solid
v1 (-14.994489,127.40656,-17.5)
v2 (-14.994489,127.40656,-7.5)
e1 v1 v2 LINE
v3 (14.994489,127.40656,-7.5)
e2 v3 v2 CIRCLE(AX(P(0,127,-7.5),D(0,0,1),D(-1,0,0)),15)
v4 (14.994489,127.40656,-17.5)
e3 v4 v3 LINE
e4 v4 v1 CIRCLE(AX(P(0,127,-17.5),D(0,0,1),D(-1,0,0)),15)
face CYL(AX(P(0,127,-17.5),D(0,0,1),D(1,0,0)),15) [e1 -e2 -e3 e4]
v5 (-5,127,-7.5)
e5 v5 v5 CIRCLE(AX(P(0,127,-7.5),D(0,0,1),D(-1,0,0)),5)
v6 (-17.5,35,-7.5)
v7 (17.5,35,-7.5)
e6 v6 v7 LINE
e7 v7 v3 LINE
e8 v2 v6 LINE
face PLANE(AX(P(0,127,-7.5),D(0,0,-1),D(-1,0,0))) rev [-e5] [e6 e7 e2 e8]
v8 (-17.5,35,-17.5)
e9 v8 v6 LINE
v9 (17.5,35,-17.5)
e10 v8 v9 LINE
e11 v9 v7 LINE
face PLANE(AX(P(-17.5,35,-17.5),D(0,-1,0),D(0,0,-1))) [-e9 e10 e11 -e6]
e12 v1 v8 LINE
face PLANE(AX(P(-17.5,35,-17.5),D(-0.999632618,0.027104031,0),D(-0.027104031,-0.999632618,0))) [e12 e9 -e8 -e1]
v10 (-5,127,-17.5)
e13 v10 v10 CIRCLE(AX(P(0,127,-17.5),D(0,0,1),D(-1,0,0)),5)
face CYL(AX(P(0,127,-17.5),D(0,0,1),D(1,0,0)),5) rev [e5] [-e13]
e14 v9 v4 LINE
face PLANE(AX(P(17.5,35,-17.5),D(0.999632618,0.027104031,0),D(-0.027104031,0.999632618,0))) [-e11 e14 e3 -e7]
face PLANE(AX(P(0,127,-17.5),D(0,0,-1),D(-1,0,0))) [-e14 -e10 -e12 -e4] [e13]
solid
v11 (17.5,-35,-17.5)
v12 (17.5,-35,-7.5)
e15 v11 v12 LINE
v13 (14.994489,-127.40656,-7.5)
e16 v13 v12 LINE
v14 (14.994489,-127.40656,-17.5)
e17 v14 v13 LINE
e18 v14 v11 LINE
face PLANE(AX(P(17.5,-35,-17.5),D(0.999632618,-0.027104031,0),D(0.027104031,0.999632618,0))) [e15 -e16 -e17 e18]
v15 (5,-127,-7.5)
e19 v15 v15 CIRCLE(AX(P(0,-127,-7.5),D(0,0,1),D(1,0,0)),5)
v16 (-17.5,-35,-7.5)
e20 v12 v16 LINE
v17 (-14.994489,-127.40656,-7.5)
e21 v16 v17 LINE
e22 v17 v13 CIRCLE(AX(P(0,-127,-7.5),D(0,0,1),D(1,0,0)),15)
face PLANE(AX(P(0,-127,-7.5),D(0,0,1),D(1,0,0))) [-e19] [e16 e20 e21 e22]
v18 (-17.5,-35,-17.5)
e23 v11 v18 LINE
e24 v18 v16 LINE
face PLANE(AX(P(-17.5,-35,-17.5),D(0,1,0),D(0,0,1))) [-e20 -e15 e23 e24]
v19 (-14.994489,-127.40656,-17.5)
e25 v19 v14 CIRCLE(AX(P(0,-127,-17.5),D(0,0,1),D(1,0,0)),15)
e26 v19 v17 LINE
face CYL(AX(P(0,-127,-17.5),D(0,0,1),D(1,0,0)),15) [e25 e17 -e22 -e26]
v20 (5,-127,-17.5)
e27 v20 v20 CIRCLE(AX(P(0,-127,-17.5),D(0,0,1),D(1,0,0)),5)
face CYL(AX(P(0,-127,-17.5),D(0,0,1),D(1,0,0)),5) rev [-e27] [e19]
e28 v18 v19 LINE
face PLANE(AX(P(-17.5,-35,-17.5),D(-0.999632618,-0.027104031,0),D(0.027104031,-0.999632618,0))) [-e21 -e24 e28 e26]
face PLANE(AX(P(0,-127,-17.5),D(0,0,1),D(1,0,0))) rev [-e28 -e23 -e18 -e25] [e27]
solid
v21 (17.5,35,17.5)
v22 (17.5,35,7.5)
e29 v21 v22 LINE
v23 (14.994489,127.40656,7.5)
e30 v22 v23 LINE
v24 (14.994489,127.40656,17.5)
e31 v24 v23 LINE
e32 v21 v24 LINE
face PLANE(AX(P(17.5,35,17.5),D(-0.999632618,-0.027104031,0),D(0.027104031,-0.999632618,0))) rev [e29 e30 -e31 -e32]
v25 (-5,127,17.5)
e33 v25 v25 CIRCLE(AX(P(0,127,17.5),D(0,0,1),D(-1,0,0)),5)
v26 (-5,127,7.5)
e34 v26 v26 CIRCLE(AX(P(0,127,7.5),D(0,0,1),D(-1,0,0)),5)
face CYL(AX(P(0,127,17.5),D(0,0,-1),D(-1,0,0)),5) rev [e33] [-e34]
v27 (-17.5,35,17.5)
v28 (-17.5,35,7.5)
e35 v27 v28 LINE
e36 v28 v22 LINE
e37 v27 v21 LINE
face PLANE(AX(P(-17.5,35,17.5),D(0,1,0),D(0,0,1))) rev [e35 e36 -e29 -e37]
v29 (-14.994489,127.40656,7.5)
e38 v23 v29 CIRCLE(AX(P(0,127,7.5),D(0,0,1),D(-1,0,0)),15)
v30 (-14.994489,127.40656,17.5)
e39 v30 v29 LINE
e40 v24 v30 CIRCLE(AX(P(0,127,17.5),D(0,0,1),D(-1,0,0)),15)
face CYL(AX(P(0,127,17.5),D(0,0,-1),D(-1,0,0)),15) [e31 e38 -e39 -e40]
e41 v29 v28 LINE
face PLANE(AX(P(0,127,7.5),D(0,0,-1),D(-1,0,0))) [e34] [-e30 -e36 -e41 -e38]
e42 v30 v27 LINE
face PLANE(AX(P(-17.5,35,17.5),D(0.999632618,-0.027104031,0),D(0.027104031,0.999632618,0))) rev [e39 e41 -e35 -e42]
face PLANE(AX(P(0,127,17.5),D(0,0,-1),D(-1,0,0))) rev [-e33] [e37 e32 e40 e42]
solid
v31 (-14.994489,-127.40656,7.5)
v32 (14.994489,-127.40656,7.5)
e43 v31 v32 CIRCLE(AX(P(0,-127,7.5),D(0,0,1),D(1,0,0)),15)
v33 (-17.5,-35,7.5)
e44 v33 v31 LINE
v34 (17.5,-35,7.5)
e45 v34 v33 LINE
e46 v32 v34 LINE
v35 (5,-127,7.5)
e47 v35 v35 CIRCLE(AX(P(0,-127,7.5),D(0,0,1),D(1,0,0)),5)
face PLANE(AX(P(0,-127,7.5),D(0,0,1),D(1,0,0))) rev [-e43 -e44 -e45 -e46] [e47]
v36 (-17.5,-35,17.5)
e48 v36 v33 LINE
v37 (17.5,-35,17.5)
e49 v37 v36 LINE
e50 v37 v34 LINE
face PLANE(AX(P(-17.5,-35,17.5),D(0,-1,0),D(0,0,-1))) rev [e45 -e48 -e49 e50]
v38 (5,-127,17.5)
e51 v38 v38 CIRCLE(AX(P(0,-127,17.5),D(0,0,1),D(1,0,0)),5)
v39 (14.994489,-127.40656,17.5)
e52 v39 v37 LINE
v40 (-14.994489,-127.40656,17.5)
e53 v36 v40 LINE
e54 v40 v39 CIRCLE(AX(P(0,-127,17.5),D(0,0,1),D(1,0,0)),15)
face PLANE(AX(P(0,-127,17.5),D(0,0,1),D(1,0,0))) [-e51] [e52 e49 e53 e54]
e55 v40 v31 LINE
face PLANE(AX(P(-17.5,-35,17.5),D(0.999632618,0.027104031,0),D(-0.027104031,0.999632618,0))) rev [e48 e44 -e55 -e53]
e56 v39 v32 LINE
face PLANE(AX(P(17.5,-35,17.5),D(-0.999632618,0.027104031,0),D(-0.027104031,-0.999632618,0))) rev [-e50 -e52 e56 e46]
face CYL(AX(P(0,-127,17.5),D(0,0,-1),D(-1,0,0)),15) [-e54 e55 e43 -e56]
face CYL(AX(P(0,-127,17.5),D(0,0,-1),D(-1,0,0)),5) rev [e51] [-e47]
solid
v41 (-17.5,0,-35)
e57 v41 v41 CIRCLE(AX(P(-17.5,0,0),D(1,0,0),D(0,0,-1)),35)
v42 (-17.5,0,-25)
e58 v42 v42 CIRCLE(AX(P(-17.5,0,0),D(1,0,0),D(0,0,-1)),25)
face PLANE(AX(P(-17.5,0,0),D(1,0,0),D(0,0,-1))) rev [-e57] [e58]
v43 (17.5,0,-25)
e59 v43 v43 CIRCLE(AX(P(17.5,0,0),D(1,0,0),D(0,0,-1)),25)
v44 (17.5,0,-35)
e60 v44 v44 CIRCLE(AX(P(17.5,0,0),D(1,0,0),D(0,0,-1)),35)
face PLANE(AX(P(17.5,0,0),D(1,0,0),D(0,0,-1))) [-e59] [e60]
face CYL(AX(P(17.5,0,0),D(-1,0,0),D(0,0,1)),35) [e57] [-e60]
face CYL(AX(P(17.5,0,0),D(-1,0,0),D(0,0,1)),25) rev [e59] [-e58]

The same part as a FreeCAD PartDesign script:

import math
import FreeCAD as App
import Part
import Sketcher
from FreeCAD import Vector
Q = App.Units.Quantity

doc = App.newDocument("Part")
body = doc.addObject("PartDesign::Body", "Body")

# Sketch on YZ plane
sketch1 = body.newObject("Sketcher::SketchObject", "Sketch")
sketch1.AttachmentSupport = (doc.getObject("YZ_Plane"), [""])
sketch1.MapMode = "FlatFace"
sketch1.addGeometry([
    Part.Circle(Vector(0, 0, 0), Vector(0, 0, 1), 35),
    Part.Circle(Vector(0, 0, 0), Vector(0, 0, 1), 25),
], False)
sketch1.addConstraint([
    Sketcher.Constraint("Coincident", 0, 3, -1, 1),
    Sketcher.Constraint("Coincident", 1, 3, -1, 1),
    Sketcher.Constraint("Diameter", 0, Q("70 mm")),
    Sketcher.Constraint("Diameter", 1, Q("50 mm")),
])
pad1 = body.newObject("PartDesign::Pad", "Pad")
pad1.Profile = sketch1
pad1.Length = 35
pad1.Midplane = True
body2 = doc.addObject("PartDesign::Body", "Body001")

# Sketch on XY plane
sketch2 = body2.newObject("Sketcher::SketchObject", "Sketch001")
sketch2.AttachmentSupport = (doc.getObject("XY_Plane001"), [""])
sketch2.MapMode = "FlatFace"
sketch2.AttachmentOffset = App.Placement(Vector(0, 0, -7.5), App.Rotation())
sketch2.addGeometry([
    Part.LineSegment(Vector(-18, -35, 0), Vector(-15, -127, 0)),  # 0
    Part.ArcOfCircle(Part.Circle(Vector(0, -127, 0), Vector(0, 0, 1), 15), math.radians(-178), math.radians(-2)),  # 1
    Part.LineSegment(Vector(15, -127, 0), Vector(18, -35, 0)),  # 2
    Part.LineSegment(Vector(18, -35, 0), Vector(-18, -35, 0)),  # 3
    Part.Circle(Vector(0, -127, 0), Vector(0, 0, 1), 5),  # 4
], False)
sketch2.addConstraint([
    Sketcher.Constraint("Tangent", 0, 2, 1, 1),
    Sketcher.Constraint("Tangent", 1, 2, 2, 1),
    Sketcher.Constraint("Coincident", 2, 2, 3, 1),
    Sketcher.Constraint("Coincident", 3, 2, 0, 1),
    Sketcher.Constraint("Horizontal", 3),
    Sketcher.Constraint("Coincident", 4, 3, 1, 3),
    Sketcher.Constraint("Symmetric", 0, 2, 1, 2, -2),
    Sketcher.Constraint("Diameter", 4, Q("10 mm")),
    Sketcher.Constraint("Radius", 1, Q("15 mm")),
    Sketcher.Constraint("DistanceX", 3, 2, 3, 1, Q("35 mm")),
    Sketcher.Constraint("DistanceY", 1, 3, -1, 1, Q("127 mm")),
    Sketcher.Constraint("DistanceY", 2, 2, -1, 1, Q("35 mm")),
])
pad2 = body2.newObject("PartDesign::Pad", "Pad001")
pad2.Profile = sketch2
pad2.Length = 10
pad2.Reversed = True
body3 = doc.addObject("PartDesign::Body", "Body002")

# Sketch on XY plane
sketch3 = body3.newObject("Sketcher::SketchObject", "Sketch002")
sketch3.AttachmentSupport = (doc.getObject("XY_Plane002"), [""])
sketch3.MapMode = "FlatFace"
sketch3.AttachmentOffset = App.Placement(Vector(0, 0, -7.5), App.Rotation())
sketch3.addGeometry([
    Part.LineSegment(Vector(-18, 35, 0), Vector(18, 35, 0)),  # 0
    Part.LineSegment(Vector(18, 35, 0), Vector(15, 127, 0)),  # 1
    Part.ArcOfCircle(Part.Circle(Vector(0, 127, 0), Vector(0, 0, 1), 15), math.radians(2), math.radians(178)),  # 2
    Part.LineSegment(Vector(-15, 127, 0), Vector(-18, 35, 0)),  # 3
    Part.Circle(Vector(0, 127, 0), Vector(0, 0, 1), 5),  # 4
], False)
sketch3.addConstraint([
    Sketcher.Constraint("Coincident", 0, 2, 1, 1),
    Sketcher.Constraint("Tangent", 1, 2, 2, 1),
    Sketcher.Constraint("Tangent", 2, 2, 3, 1),
    Sketcher.Constraint("Coincident", 3, 2, 0, 1),
    Sketcher.Constraint("Horizontal", 0),
    Sketcher.Constraint("Coincident", 4, 3, 2, 3),
    Sketcher.Constraint("Symmetric", 1, 2, 2, 2, -2),
    Sketcher.Constraint("Diameter", 4, Q("10 mm")),
    Sketcher.Constraint("Radius", 2, Q("15 mm")),
    Sketcher.Constraint("DistanceX", 0, 1, 0, 2, Q("35 mm")),
    Sketcher.Constraint("DistanceY", -1, 1, 2, 3, Q("127 mm")),
    Sketcher.Constraint("DistanceY", -1, 1, 0, 2, Q("35 mm")),
])
pad3 = body3.newObject("PartDesign::Pad", "Pad002")
pad3.Profile = sketch3
pad3.Length = 10
pad3.Reversed = True
body4 = doc.addObject("PartDesign::Body", "Body003")

# Sketch on XY plane
sketch4 = body4.newObject("Sketcher::SketchObject", "Sketch003")
sketch4.AttachmentSupport = (doc.getObject("XY_Plane003"), [""])
sketch4.MapMode = "FlatFace"
sketch4.AttachmentOffset = App.Placement(Vector(0, 0, 7.5), App.Rotation())
sketch4.addGeometry([
    Part.LineSegment(Vector(-18, -35, 0), Vector(-15, -127, 0)),  # 0
    Part.ArcOfCircle(Part.Circle(Vector(0, -127, 0), Vector(0, 0, 1), 15), math.radians(-178), math.radians(-2)),  # 1
    Part.LineSegment(Vector(15, -127, 0), Vector(18, -35, 0)),  # 2
    Part.LineSegment(Vector(18, -35, 0), Vector(-18, -35, 0)),  # 3
    Part.Circle(Vector(0, -127, 0), Vector(0, 0, 1), 5),  # 4
], False)
sketch4.addConstraint([
    Sketcher.Constraint("Tangent", 0, 2, 1, 1),
    Sketcher.Constraint("Tangent", 1, 2, 2, 1),
    Sketcher.Constraint("Coincident", 2, 2, 3, 1),
    Sketcher.Constraint("Coincident", 3, 2, 0, 1),
    Sketcher.Constraint("Horizontal", 3),
    Sketcher.Constraint("Coincident", 4, 3, 1, 3),
    Sketcher.Constraint("Symmetric", 0, 2, 1, 2, -2),
    Sketcher.Constraint("Diameter", 4, Q("10 mm")),
    Sketcher.Constraint("Radius", 1, Q("15 mm")),
    Sketcher.Constraint("DistanceX", 3, 2, 3, 1, Q("35 mm")),
    Sketcher.Constraint("DistanceY", 1, 3, -1, 1, Q("127 mm")),
    Sketcher.Constraint("DistanceY", 2, 2, -1, 1, Q("35 mm")),
])
pad4 = body4.newObject("PartDesign::Pad", "Pad003")
pad4.Profile = sketch4
pad4.Length = 10
body5 = doc.addObject("PartDesign::Body", "Body004")

# Sketch on XY plane
sketch5 = body5.newObject("Sketcher::SketchObject", "Sketch004")
sketch5.AttachmentSupport = (doc.getObject("XY_Plane004"), [""])
sketch5.MapMode = "FlatFace"
sketch5.AttachmentOffset = App.Placement(Vector(0, 0, 7.5), App.Rotation())
sketch5.addGeometry([
    Part.LineSegment(Vector(-18, 35, 0), Vector(18, 35, 0)),  # 0
    Part.LineSegment(Vector(18, 35, 0), Vector(15, 127, 0)),  # 1
    Part.ArcOfCircle(Part.Circle(Vector(0, 127, 0), Vector(0, 0, 1), 15), math.radians(2), math.radians(178)),  # 2
    Part.LineSegment(Vector(-15, 127, 0), Vector(-18, 35, 0)),  # 3
    Part.Circle(Vector(0, 127, 0), Vector(0, 0, 1), 5),  # 4
], False)
sketch5.addConstraint([
    Sketcher.Constraint("Coincident", 0, 2, 1, 1),
    Sketcher.Constraint("Tangent", 1, 2, 2, 1),
    Sketcher.Constraint("Tangent", 2, 2, 3, 1),
    Sketcher.Constraint("Coincident", 3, 2, 0, 1),
    Sketcher.Constraint("Horizontal", 0),
    Sketcher.Constraint("Coincident", 4, 3, 2, 3),
    Sketcher.Constraint("Symmetric", 1, 2, 2, 2, -2),
    Sketcher.Constraint("Diameter", 4, Q("10 mm")),
    Sketcher.Constraint("Radius", 2, Q("15 mm")),
    Sketcher.Constraint("DistanceX", 0, 1, 0, 2, Q("35 mm")),
    Sketcher.Constraint("DistanceY", -1, 1, 2, 3, Q("127 mm")),
    Sketcher.Constraint("DistanceY", -1, 1, 0, 2, Q("35 mm")),
])
pad5 = body5.newObject("PartDesign::Pad", "Pad004")
pad5.Profile = sketch5
pad5.Length = 10

doc.recompute()
